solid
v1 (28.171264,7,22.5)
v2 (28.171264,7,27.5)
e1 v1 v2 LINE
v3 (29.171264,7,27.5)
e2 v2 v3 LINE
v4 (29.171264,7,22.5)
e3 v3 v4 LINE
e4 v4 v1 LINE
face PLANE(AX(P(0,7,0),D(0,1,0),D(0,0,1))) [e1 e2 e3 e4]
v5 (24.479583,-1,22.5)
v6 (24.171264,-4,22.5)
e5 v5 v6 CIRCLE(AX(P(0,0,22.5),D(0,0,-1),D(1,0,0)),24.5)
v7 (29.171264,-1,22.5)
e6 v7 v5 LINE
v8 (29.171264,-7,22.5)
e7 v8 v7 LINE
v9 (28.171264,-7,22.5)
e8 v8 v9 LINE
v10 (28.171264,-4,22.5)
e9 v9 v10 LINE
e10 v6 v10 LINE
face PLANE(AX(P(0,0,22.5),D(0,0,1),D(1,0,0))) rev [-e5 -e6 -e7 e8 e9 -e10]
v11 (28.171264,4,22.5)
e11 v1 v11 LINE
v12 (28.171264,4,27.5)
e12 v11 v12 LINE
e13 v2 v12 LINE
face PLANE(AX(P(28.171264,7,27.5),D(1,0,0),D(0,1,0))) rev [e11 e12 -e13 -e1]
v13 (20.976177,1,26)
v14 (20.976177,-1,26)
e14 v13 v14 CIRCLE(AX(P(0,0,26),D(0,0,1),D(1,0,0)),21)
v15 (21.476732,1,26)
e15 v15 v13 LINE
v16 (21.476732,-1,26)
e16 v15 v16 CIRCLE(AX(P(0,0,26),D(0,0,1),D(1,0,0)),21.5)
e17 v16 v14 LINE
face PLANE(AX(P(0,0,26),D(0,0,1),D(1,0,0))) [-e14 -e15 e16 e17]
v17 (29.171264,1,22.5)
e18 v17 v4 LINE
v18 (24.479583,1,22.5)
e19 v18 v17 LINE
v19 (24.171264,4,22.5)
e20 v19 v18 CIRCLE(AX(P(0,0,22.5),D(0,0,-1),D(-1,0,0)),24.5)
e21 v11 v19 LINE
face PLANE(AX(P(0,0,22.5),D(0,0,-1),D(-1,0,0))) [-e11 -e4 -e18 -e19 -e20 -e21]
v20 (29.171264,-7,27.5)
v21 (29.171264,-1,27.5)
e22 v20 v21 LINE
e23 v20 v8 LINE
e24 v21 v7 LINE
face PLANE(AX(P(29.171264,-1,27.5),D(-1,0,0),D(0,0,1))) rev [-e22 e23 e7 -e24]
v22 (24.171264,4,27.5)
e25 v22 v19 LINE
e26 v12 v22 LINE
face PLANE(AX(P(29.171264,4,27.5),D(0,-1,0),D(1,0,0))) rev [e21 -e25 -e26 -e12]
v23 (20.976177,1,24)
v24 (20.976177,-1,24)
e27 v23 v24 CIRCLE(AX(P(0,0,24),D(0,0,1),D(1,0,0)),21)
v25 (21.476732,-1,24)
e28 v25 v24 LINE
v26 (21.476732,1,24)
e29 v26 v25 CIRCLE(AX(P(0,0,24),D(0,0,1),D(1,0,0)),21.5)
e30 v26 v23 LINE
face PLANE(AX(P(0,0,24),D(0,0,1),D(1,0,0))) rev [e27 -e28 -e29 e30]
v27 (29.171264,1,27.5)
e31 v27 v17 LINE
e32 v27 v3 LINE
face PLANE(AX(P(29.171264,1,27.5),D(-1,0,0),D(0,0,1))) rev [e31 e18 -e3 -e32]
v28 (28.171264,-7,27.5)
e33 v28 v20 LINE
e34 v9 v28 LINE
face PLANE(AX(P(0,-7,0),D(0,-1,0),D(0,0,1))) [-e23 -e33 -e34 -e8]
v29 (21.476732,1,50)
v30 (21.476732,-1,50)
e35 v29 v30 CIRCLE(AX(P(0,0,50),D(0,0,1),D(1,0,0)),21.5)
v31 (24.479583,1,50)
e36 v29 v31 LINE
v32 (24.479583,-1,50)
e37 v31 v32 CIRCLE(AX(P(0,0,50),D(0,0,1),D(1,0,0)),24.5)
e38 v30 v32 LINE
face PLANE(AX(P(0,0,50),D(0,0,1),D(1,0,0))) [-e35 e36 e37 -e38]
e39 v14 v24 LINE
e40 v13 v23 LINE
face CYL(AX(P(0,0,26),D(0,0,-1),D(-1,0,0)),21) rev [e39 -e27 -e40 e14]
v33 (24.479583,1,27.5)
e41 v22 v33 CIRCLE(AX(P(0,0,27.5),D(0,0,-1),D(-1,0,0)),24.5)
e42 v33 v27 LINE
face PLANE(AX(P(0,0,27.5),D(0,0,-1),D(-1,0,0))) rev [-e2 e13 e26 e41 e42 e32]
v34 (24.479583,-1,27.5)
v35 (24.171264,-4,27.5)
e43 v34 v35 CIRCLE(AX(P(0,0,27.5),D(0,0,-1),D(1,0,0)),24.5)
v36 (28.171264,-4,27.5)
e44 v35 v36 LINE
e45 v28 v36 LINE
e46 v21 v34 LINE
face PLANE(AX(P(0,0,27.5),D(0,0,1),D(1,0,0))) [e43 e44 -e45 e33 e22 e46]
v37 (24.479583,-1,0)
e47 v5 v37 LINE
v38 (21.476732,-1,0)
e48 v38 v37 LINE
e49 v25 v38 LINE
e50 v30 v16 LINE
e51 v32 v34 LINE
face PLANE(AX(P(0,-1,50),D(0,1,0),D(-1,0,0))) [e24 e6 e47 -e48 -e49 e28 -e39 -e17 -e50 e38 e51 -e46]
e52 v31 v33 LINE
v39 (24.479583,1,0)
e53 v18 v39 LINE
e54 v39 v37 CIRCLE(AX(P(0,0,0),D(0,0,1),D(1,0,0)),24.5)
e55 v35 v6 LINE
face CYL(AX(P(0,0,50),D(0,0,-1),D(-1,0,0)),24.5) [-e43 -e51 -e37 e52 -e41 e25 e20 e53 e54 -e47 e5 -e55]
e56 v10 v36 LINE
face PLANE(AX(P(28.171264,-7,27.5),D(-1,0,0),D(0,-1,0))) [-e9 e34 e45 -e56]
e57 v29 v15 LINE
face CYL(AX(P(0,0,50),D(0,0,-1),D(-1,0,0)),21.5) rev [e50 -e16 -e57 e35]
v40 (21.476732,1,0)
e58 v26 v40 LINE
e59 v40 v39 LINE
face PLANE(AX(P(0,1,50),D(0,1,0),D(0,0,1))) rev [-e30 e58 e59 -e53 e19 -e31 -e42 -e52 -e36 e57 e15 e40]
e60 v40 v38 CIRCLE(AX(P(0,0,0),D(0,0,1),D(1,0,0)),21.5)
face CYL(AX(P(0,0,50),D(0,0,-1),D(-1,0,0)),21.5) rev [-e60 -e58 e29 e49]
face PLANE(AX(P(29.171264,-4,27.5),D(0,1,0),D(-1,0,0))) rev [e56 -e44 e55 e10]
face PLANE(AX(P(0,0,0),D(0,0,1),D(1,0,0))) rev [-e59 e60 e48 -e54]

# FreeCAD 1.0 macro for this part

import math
import FreeCAD as App
import Part
import Sketcher
from FreeCAD import Vector

doc = App.newDocument("Part")
body = doc.addObject("PartDesign::Body", "Body")

sketch1 = doc.addObject("Sketcher::SketchObject", "Sketch")
body.addObject(sketch1)
sketch1.AttachmentSupport = (doc.XY_Plane, [""])
sketch1.MapMode = "FlatFace"
sketch1.addGeometry([
    Part.LineSegment(Vector(21.5, 1, 0), Vector(24.5, 1, 0)),
    Part.ArcOfCircle(Part.Circle(Vector(0, 0, 0), Vector(0, 0, 1), 24.5), math.radians(2), math.radians(358)),
    Part.LineSegment(Vector(24.5, -1, 0), Vector(21.5, -1, 0)),
    Part.ArcOfCircle(Part.Circle(Vector(0, 0, 0), Vector(0, 0, 1), 21.5), math.radians(3), math.radians(357)),
], False)
sketch1.addConstraint([
    Sketcher.Constraint("Coincident", 0, 2, 1, 1),
    Sketcher.Constraint("Coincident", 1, 2, 2, 1),
    Sketcher.Constraint("Coincident", 2, 2, 3, 2),
    Sketcher.Constraint("Coincident", 3, 1, 0, 1),
    Sketcher.Constraint("Horizontal", 0),
    Sketcher.Constraint("Horizontal", 2),
    Sketcher.Constraint("Coincident", 1, 3, -1, 1),
    Sketcher.Constraint("Coincident", 3, 3, -1, 1),
    Sketcher.Constraint("Vertical", 0, 2, 1, 2),
    Sketcher.Constraint("Radius", 1, 24.5),
    Sketcher.Constraint("Radius", 3, 21.5),
    Sketcher.Constraint("DistanceY", -1, 1, 0, 2, 1.0),
])
pad1 = doc.addObject("PartDesign::Pad", "Pad")
body.addObject(pad1)
pad1.Profile = sketch1
pad1.Length = 50

sketch2 = doc.addObject("Sketcher::SketchObject", "Sketch001")
body.addObject(sketch2)
sketch2.AttachmentSupport = (doc.XY_Plane, [""])
sketch2.MapMode = "FlatFace"
sketch2.AttachmentOffset = App.Placement(Vector(0, 0, 25), App.Rotation())
sketch2.addGeometry([
    Part.LineSegment(Vector(24.5, 1, 0), Vector(29.2, 1, 0)),
    Part.LineSegment(Vector(29.2, 1, 0), Vector(29.2, 4, 0)),
    Part.LineSegment(Vector(29.2, 4, 0), Vector(24.2, 4, 0)),
    Part.ArcOfCircle(Part.Circle(Vector(0, 0, 0), Vector(0, 0, 1), 24.5), math.radians(2.34), math.radians(9.4)),
    Part.LineSegment(Vector(24.2, -4, 0), Vector(29.2, -4, 0)),
    Part.LineSegment(Vector(29.2, -4, 0), Vector(29.2, -1, 0)),
    Part.LineSegment(Vector(29.2, -1, 0), Vector(24.5, -1, 0)),
    Part.ArcOfCircle(Part.Circle(Vector(0, 0, 0), Vector(0, 0, 1), 24.5), math.radians(-9.4), math.radians(-2.34)),
], False)
sketch2.addConstraint([
    Sketcher.Constraint("Coincident", 0, 2, 1, 1),
    Sketcher.Constraint("Coincident", 1, 2, 2, 1),
    Sketcher.Constraint("Coincident", 2, 2, 3, 2),
    Sketcher.Constraint("Coincident", 3, 1, 0, 1),
    Sketcher.Constraint("Coincident", 4, 2, 5, 1),
    Sketcher.Constraint("Coincident", 5, 2, 6, 1),
    Sketcher.Constraint("Coincident", 6, 2, 7, 2),
    Sketcher.Constraint("Coincident", 7, 1, 4, 1),
    Sketcher.Constraint("Horizontal", 0),
    Sketcher.Constraint("Vertical", 1),
    Sketcher.Constraint("Horizontal", 2),
    Sketcher.Constraint("Horizontal", 4),
    Sketcher.Constraint("Vertical", 5),
    Sketcher.Constraint("Horizontal", 6),
    Sketcher.Constraint("Coincident", 3, 3, -1, 1),
    Sketcher.Constraint("Coincident", 7, 3, -1, 1),
    Sketcher.Constraint("Equal", 3, 7),
    Sketcher.Constraint("Symmetric", 1, 2, 4, 2, -1),
    Sketcher.Constraint("Vertical", 3, 1, 6, 2),
    Sketcher.Constraint("Radius", 3, 24.5),
    Sketcher.Constraint("DistanceX", 2, 2, 2, 1, 5.0),
    Sketcher.Constraint("DistanceY", 1, 1, 1, 2, 3.0),
    Sketcher.Constraint("DistanceY", -1, 1, 0, 2, 1.0),
])
pad2 = doc.addObject("PartDesign::Pad", "Pad001")
body.addObject(pad2)
pad2.Profile = sketch2
pad2.Length = 5
pad2.Midplane = True

sketch3 = doc.addObject("Sketcher::SketchObject", "Sketch002")
body.addObject(sketch3)
sketch3.AttachmentSupport = (doc.XY_Plane, [""])
sketch3.MapMode = "FlatFace"
sketch3.AttachmentOffset = App.Placement(Vector(0, 0, 25), App.Rotation())
sketch3.addGeometry([
    Part.LineSegment(Vector(21, 1, 0), Vector(21.5, 1, 0)),
    Part.ArcOfCircle(Part.Circle(Vector(0, 0, 0), Vector(0, 0, 1), 21.5), math.radians(3), math.radians(357)),
    Part.LineSegment(Vector(21.5, -1, 0), Vector(21, -1, 0)),
    Part.ArcOfCircle(Part.Circle(Vector(0, 0, 0), Vector(0, 0, 1), 21), math.radians(3), math.radians(357)),
], False)
sketch3.addConstraint([
    Sketcher.Constraint("Coincident", 0, 2, 1, 1),
    Sketcher.Constraint("Coincident", 1, 2, 2, 1),
    Sketcher.Constraint("Coincident", 2, 2, 3, 2),
    Sketcher.Constraint("Coincident", 3, 1, 0, 1),
    Sketcher.Constraint("Horizontal", 0),
    Sketcher.Constraint("Horizontal", 2),
    Sketcher.Constraint("Coincident", 1, 3, -1, 1),
    Sketcher.Constraint("Coincident", 3, 3, -1, 1),
    Sketcher.Constraint("Vertical", 0, 2, 1, 2),
    Sketcher.Constraint("Radius", 3, 21.0),
    Sketcher.Constraint("Radius", 1, 21.5),
    Sketcher.Constraint("DistanceY", -1, 1, 0, 2, 1.0),
])
pad3 = doc.addObject("PartDesign::Pad", "Pad002")
body.addObject(pad3)
pad3.Profile = sketch3
pad3.Length = 2
pad3.Midplane = True

sketch4 = doc.addObject("Sketcher::SketchObject", "Sketch003")
body.addObject(sketch4)
sketch4.AttachmentSupport = (doc.XZ_Plane, [""])
sketch4.MapMode = "FlatFace"
sketch4.AttachmentOffset = App.Placement(Vector(0, 0, -4), App.Rotation())
sketch4.addGeometry([
    Part.LineSegment(Vector(28.2, 22.5, 0), Vector(28.2, 27.5, 0)),
    Part.LineSegment(Vector(28.2, 27.5, 0), Vector(29.2, 27.5, 0)),
    Part.LineSegment(Vector(29.2, 27.5, 0), Vector(29.2, 22.5, 0)),
    Part.LineSegment(Vector(29.2, 22.5, 0), Vector(28.2, 22.5, 0)),
], False)
sketch4.addConstraint([
    Sketcher.Constraint("Coincident", 0, 2, 1, 1),
    Sketcher.Constraint("Coincident", 1, 2, 2, 1),
    Sketcher.Constraint("Coincident", 2, 2, 3, 1),
    Sketcher.Constraint("Coincident", 3, 2, 0, 1),
    Sketcher.Constraint("Vertical", 0),
    Sketcher.Constraint("Horizontal", 1),
    Sketcher.Constraint("Vertical", 2),
    Sketcher.Constraint("Horizontal", 3),
    Sketcher.Constraint("DistanceX", 1, 1, 1, 2, 1.0),
    Sketcher.Constraint("DistanceY", 0, 1, 0, 2, 5.0),
    Sketcher.Constraint("DistanceY", -1, 1, 0, 2, 27.5),
    Sketcher.Constraint("DistanceX", -1, 1, 0, 2, 28.171264),
])
pad4 = doc.addObject("PartDesign::Pad", "Pad003")
body.addObject(pad4)
pad4.Profile = sketch4
pad4.Length = 3
pad4.Reversed = True
doc.recompute()

mirrored = doc.addObject("PartDesign::Mirrored", "Mirrored")
body.addObject(mirrored)
mirrored.Originals = [pad4]
mirrored.MirrorPlane = (doc.XZ_Plane, [""])
body.Tip = mirrored

doc.recompute()
